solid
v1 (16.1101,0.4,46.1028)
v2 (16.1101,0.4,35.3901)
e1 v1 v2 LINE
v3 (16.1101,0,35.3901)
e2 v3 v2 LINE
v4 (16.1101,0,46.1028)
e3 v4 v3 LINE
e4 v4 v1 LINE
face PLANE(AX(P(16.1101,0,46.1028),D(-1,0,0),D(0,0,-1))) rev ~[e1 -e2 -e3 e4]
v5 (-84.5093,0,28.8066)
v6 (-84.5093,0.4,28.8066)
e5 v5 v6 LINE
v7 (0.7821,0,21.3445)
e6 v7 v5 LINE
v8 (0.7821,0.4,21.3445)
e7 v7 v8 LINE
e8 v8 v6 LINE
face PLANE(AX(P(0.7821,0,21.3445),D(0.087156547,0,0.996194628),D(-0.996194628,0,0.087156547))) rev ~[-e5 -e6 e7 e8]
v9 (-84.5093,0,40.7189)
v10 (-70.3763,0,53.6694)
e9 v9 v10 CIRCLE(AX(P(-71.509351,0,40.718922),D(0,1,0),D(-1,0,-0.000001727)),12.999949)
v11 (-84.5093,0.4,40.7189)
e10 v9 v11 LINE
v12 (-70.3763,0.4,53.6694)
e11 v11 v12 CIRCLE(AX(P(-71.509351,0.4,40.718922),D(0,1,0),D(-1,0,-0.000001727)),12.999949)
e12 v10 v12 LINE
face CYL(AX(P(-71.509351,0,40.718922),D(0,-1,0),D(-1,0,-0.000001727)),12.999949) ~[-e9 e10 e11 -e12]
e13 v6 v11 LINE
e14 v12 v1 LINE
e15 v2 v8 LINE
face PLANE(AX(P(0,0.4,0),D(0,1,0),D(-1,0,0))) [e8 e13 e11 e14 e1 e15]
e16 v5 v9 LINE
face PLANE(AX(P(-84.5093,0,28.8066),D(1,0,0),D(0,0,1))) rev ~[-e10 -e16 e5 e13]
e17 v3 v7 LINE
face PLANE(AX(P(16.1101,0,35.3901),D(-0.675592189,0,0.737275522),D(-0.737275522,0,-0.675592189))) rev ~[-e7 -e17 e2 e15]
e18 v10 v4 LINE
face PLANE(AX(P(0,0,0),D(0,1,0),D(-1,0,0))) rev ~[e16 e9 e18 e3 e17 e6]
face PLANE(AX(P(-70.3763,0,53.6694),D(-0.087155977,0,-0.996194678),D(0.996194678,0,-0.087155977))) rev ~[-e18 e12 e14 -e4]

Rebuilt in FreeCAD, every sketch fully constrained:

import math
import FreeCAD as App
import Part
import Sketcher

V = App.Vector

doc = App.newDocument("Part")
body = doc.addObject("PartDesign::Body", "Body")

# Sketch on XZ plane
sketch1 = body.newObject("Sketcher::SketchObject", "Sketch")
sketch1.AttachmentSupport = (doc.getObject("XZ_Plane"), [""])
sketch1.MapMode = "FlatFace"
sketch1.addGeometry(Part.LineSegment(V(16.1101, 35.3901, 0), V(0.7821, 21.3445, 0)), False)
sketch1.addGeometry(Part.LineSegment(V(0.7821, 21.3445, 0), V(-84.5093, 28.8066, 0)), False)
sketch1.addGeometry(Part.LineSegment(V(-84.5093, 28.8066, 0), V(-84.5093, 40.7189, 0)), False)
sketch1.addGeometry(Part.ArcOfCircle(Part.Circle(V(-71.5093, 40.7189, 0), V(0, 0, 1), 13), math.radians(85.000096), math.radians(180)), False)
sketch1.addGeometry(Part.LineSegment(V(-70.3763, 53.6694, 0), V(16.1101, 46.1028, 0)), False)
sketch1.addGeometry(Part.LineSegment(V(16.1101, 46.1028, 0), V(16.1101, 35.3901, 0)), False)
sketch1.addConstraint(Sketcher.Constraint("Coincident", 0, 2, 1, 1))
sketch1.addConstraint(Sketcher.Constraint("Coincident", 1, 2, 2, 1))
sketch1.addConstraint(Sketcher.Constraint("Coincident", 2, 2, 3, 2))
sketch1.addConstraint(Sketcher.Constraint("Coincident", 3, 1, 4, 1))
sketch1.addConstraint(Sketcher.Constraint("Coincident", 4, 2, 5, 1))
sketch1.addConstraint(Sketcher.Constraint("Coincident", 5, 2, 0, 1))
sketch1.addConstraint(Sketcher.Constraint("Vertical", 2))
sketch1.addConstraint(Sketcher.Constraint("Vertical", 5))
sketch1.addConstraint(Sketcher.Constraint("Radius", 3, 13.0))
sketch1.addConstraint(Sketcher.Constraint("Distance", 0, 20.79))
sketch1.addConstraint(Sketcher.Constraint("DistanceX", -1, 1, 4, 2, 16.11))
sketch1.addConstraint(Sketcher.Constraint("DistanceY", -1, 1, 5, 2, 35.39))
sketch1.addConstraint(Sketcher.Constraint("DistanceY", 2, 1, 2, 2, 11.9123))
sketch1.addConstraint(Sketcher.Constraint("DistanceY", 5, 2, 5, 1, 10.7127))
sketch1.addConstraint(Sketcher.Constraint("DistanceY", -1, 1, 3, 3, 40.719))
sketch1.addConstraint(Sketcher.Constraint("DistanceX", -1, 1, 0, 2, 0.782))
sketch1.addConstraint(Sketcher.Constraint("DistanceY", -1, 1, 2, 2, 40.719))
sketch1.addConstraint(Sketcher.Constraint("DistanceX", 3, 3, 3, 1, 1.133))
sketch1.addConstraint(Sketcher.Constraint("Distance", 1, 85.6172))
pad1 = body.newObject("PartDesign::Pad", "Pad")
pad1.Profile = sketch1
pad1.Length = 0.4
pad1.Reversed = True

doc.recompute()
